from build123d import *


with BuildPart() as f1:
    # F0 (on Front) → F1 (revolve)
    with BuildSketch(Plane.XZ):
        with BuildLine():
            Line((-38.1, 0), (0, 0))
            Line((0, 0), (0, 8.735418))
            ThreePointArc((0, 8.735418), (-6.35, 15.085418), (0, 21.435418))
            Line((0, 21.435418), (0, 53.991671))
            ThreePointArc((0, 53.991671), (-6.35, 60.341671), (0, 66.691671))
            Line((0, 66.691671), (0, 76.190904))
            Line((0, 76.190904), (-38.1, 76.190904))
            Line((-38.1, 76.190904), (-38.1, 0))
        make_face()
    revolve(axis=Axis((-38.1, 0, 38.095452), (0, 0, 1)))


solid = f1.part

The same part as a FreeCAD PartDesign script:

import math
import FreeCAD as App
import Part
import Sketcher
from FreeCAD import Vector
Q = App.Units.Quantity

doc = App.newDocument("Part")
body = doc.addObject("PartDesign::Body", "Body")

# Sketch on XZ plane
sketch1 = doc.addObject("Sketcher::SketchObject", "Sketch")
body.addObject(sketch1)
sketch1.AttachmentSupport = (doc.XZ_Plane, [""])
sketch1.MapMode = "FlatFace"
sketch1.addGeometry(Part.LineSegment(Vector(-38, 0, 0), Vector(0, 0, 0)), False)
sketch1.addGeometry(Part.LineSegment(Vector(0, 0, 0), Vector(0, 9, 0)), False)
sketch1.addGeometry(Part.ArcOfCircle(Part.Circle(Vector(0, 15, 0), Vector(0, 0, 1), 6), math.radians(90), math.radians(270)), False)
sketch1.addGeometry(Part.LineSegment(Vector(0, 21, 0), Vector(0, 54, 0)), False)
sketch1.addGeometry(Part.ArcOfCircle(Part.Circle(Vector(0, 60, 0), Vector(0, 0, 1), 6), math.radians(90), math.radians(270)), False)
sketch1.addGeometry(Part.LineSegment(Vector(0, 67, 0), Vector(0, 76, 0)), False)
sketch1.addGeometry(Part.LineSegment(Vector(0, 76, 0), Vector(-38, 76, 0)), False)
sketch1.addGeometry(Part.LineSegment(Vector(-38, 76, 0), Vector(-38, 0, 0)), False)
sketch1.addGeometry(Part.LineSegment(Vector(-38, 0, 0), Vector(-38, 76, 0)), True)  # axis
sketch1.addConstraint(Sketcher.Constraint("Coincident", 0, 2, 1, 1))
sketch1.addConstraint(Sketcher.Constraint("Coincident", 1, 2, 2, 2))
sketch1.addConstraint(Sketcher.Constraint("Coincident", 2, 1, 3, 1))
sketch1.addConstraint(Sketcher.Constraint("Coincident", 3, 2, 4, 2))
sketch1.addConstraint(Sketcher.Constraint("Coincident", 4, 1, 5, 1))
sketch1.addConstraint(Sketcher.Constraint("Coincident", 5, 2, 6, 1))
sketch1.addConstraint(Sketcher.Constraint("Coincident", 6, 2, 7, 1))
sketch1.addConstraint(Sketcher.Constraint("Coincident", 7, 2, 0, 1))
sketch1.addConstraint(Sketcher.Constraint("Horizontal", 0))
sketch1.addConstraint(Sketcher.Constraint("Vertical", 1))
sketch1.addConstraint(Sketcher.Constraint("Vertical", 3))
sketch1.addConstraint(Sketcher.Constraint("Vertical", 5))
sketch1.addConstraint(Sketcher.Constraint("Horizontal", 6))
sketch1.addConstraint(Sketcher.Constraint("Vertical", 7))
sketch1.addConstraint(Sketcher.Constraint("Vertical", 8))
sketch1.addConstraint(Sketcher.Constraint("Coincident", 0, 2, -1, 1))
sketch1.addConstraint(Sketcher.Constraint("Coincident", 8, 1, 7, 2))
sketch1.addConstraint(Sketcher.Constraint("Equal", 2, 4))
sketch1.addConstraint(Sketcher.Constraint("PointOnObject", 2, 3, -2))
sketch1.addConstraint(Sketcher.Constraint("PointOnObject", 4, 3, -2))
sketch1.addConstraint(Sketcher.Constraint("PointOnObject", 2, 1, -2))
sketch1.addConstraint(Sketcher.Constraint("PointOnObject", 4, 1, -2))
sketch1.addConstraint(Sketcher.Constraint("Horizontal", 5, 2, 8, 2))
sketch1.addConstraint(Sketcher.Constraint("Radius", 2, Q("0.25 in")))
sketch1.addConstraint(Sketcher.Constraint("DistanceX", 0, 1, 0, 2, Q("1.5 in")))
sketch1.addConstraint(Sketcher.Constraint("DistanceY", 1, 1, 1, 2, Q("8.735418 mm")))
sketch1.addConstraint(Sketcher.Constraint("DistanceY", 3, 1, 3, 2, Q("32.556253 mm")))
sketch1.addConstraint(Sketcher.Constraint("DistanceY", 5, 1, 5, 2, Q("9.499233 mm")))
revolution = doc.addObject("PartDesign::Revolution", "Revolution")
body.addObject(revolution)
revolution.Profile = sketch1
revolution.ReferenceAxis = (sketch1, ["Axis0"])
revolution.Angle = 360

doc.recompute()
